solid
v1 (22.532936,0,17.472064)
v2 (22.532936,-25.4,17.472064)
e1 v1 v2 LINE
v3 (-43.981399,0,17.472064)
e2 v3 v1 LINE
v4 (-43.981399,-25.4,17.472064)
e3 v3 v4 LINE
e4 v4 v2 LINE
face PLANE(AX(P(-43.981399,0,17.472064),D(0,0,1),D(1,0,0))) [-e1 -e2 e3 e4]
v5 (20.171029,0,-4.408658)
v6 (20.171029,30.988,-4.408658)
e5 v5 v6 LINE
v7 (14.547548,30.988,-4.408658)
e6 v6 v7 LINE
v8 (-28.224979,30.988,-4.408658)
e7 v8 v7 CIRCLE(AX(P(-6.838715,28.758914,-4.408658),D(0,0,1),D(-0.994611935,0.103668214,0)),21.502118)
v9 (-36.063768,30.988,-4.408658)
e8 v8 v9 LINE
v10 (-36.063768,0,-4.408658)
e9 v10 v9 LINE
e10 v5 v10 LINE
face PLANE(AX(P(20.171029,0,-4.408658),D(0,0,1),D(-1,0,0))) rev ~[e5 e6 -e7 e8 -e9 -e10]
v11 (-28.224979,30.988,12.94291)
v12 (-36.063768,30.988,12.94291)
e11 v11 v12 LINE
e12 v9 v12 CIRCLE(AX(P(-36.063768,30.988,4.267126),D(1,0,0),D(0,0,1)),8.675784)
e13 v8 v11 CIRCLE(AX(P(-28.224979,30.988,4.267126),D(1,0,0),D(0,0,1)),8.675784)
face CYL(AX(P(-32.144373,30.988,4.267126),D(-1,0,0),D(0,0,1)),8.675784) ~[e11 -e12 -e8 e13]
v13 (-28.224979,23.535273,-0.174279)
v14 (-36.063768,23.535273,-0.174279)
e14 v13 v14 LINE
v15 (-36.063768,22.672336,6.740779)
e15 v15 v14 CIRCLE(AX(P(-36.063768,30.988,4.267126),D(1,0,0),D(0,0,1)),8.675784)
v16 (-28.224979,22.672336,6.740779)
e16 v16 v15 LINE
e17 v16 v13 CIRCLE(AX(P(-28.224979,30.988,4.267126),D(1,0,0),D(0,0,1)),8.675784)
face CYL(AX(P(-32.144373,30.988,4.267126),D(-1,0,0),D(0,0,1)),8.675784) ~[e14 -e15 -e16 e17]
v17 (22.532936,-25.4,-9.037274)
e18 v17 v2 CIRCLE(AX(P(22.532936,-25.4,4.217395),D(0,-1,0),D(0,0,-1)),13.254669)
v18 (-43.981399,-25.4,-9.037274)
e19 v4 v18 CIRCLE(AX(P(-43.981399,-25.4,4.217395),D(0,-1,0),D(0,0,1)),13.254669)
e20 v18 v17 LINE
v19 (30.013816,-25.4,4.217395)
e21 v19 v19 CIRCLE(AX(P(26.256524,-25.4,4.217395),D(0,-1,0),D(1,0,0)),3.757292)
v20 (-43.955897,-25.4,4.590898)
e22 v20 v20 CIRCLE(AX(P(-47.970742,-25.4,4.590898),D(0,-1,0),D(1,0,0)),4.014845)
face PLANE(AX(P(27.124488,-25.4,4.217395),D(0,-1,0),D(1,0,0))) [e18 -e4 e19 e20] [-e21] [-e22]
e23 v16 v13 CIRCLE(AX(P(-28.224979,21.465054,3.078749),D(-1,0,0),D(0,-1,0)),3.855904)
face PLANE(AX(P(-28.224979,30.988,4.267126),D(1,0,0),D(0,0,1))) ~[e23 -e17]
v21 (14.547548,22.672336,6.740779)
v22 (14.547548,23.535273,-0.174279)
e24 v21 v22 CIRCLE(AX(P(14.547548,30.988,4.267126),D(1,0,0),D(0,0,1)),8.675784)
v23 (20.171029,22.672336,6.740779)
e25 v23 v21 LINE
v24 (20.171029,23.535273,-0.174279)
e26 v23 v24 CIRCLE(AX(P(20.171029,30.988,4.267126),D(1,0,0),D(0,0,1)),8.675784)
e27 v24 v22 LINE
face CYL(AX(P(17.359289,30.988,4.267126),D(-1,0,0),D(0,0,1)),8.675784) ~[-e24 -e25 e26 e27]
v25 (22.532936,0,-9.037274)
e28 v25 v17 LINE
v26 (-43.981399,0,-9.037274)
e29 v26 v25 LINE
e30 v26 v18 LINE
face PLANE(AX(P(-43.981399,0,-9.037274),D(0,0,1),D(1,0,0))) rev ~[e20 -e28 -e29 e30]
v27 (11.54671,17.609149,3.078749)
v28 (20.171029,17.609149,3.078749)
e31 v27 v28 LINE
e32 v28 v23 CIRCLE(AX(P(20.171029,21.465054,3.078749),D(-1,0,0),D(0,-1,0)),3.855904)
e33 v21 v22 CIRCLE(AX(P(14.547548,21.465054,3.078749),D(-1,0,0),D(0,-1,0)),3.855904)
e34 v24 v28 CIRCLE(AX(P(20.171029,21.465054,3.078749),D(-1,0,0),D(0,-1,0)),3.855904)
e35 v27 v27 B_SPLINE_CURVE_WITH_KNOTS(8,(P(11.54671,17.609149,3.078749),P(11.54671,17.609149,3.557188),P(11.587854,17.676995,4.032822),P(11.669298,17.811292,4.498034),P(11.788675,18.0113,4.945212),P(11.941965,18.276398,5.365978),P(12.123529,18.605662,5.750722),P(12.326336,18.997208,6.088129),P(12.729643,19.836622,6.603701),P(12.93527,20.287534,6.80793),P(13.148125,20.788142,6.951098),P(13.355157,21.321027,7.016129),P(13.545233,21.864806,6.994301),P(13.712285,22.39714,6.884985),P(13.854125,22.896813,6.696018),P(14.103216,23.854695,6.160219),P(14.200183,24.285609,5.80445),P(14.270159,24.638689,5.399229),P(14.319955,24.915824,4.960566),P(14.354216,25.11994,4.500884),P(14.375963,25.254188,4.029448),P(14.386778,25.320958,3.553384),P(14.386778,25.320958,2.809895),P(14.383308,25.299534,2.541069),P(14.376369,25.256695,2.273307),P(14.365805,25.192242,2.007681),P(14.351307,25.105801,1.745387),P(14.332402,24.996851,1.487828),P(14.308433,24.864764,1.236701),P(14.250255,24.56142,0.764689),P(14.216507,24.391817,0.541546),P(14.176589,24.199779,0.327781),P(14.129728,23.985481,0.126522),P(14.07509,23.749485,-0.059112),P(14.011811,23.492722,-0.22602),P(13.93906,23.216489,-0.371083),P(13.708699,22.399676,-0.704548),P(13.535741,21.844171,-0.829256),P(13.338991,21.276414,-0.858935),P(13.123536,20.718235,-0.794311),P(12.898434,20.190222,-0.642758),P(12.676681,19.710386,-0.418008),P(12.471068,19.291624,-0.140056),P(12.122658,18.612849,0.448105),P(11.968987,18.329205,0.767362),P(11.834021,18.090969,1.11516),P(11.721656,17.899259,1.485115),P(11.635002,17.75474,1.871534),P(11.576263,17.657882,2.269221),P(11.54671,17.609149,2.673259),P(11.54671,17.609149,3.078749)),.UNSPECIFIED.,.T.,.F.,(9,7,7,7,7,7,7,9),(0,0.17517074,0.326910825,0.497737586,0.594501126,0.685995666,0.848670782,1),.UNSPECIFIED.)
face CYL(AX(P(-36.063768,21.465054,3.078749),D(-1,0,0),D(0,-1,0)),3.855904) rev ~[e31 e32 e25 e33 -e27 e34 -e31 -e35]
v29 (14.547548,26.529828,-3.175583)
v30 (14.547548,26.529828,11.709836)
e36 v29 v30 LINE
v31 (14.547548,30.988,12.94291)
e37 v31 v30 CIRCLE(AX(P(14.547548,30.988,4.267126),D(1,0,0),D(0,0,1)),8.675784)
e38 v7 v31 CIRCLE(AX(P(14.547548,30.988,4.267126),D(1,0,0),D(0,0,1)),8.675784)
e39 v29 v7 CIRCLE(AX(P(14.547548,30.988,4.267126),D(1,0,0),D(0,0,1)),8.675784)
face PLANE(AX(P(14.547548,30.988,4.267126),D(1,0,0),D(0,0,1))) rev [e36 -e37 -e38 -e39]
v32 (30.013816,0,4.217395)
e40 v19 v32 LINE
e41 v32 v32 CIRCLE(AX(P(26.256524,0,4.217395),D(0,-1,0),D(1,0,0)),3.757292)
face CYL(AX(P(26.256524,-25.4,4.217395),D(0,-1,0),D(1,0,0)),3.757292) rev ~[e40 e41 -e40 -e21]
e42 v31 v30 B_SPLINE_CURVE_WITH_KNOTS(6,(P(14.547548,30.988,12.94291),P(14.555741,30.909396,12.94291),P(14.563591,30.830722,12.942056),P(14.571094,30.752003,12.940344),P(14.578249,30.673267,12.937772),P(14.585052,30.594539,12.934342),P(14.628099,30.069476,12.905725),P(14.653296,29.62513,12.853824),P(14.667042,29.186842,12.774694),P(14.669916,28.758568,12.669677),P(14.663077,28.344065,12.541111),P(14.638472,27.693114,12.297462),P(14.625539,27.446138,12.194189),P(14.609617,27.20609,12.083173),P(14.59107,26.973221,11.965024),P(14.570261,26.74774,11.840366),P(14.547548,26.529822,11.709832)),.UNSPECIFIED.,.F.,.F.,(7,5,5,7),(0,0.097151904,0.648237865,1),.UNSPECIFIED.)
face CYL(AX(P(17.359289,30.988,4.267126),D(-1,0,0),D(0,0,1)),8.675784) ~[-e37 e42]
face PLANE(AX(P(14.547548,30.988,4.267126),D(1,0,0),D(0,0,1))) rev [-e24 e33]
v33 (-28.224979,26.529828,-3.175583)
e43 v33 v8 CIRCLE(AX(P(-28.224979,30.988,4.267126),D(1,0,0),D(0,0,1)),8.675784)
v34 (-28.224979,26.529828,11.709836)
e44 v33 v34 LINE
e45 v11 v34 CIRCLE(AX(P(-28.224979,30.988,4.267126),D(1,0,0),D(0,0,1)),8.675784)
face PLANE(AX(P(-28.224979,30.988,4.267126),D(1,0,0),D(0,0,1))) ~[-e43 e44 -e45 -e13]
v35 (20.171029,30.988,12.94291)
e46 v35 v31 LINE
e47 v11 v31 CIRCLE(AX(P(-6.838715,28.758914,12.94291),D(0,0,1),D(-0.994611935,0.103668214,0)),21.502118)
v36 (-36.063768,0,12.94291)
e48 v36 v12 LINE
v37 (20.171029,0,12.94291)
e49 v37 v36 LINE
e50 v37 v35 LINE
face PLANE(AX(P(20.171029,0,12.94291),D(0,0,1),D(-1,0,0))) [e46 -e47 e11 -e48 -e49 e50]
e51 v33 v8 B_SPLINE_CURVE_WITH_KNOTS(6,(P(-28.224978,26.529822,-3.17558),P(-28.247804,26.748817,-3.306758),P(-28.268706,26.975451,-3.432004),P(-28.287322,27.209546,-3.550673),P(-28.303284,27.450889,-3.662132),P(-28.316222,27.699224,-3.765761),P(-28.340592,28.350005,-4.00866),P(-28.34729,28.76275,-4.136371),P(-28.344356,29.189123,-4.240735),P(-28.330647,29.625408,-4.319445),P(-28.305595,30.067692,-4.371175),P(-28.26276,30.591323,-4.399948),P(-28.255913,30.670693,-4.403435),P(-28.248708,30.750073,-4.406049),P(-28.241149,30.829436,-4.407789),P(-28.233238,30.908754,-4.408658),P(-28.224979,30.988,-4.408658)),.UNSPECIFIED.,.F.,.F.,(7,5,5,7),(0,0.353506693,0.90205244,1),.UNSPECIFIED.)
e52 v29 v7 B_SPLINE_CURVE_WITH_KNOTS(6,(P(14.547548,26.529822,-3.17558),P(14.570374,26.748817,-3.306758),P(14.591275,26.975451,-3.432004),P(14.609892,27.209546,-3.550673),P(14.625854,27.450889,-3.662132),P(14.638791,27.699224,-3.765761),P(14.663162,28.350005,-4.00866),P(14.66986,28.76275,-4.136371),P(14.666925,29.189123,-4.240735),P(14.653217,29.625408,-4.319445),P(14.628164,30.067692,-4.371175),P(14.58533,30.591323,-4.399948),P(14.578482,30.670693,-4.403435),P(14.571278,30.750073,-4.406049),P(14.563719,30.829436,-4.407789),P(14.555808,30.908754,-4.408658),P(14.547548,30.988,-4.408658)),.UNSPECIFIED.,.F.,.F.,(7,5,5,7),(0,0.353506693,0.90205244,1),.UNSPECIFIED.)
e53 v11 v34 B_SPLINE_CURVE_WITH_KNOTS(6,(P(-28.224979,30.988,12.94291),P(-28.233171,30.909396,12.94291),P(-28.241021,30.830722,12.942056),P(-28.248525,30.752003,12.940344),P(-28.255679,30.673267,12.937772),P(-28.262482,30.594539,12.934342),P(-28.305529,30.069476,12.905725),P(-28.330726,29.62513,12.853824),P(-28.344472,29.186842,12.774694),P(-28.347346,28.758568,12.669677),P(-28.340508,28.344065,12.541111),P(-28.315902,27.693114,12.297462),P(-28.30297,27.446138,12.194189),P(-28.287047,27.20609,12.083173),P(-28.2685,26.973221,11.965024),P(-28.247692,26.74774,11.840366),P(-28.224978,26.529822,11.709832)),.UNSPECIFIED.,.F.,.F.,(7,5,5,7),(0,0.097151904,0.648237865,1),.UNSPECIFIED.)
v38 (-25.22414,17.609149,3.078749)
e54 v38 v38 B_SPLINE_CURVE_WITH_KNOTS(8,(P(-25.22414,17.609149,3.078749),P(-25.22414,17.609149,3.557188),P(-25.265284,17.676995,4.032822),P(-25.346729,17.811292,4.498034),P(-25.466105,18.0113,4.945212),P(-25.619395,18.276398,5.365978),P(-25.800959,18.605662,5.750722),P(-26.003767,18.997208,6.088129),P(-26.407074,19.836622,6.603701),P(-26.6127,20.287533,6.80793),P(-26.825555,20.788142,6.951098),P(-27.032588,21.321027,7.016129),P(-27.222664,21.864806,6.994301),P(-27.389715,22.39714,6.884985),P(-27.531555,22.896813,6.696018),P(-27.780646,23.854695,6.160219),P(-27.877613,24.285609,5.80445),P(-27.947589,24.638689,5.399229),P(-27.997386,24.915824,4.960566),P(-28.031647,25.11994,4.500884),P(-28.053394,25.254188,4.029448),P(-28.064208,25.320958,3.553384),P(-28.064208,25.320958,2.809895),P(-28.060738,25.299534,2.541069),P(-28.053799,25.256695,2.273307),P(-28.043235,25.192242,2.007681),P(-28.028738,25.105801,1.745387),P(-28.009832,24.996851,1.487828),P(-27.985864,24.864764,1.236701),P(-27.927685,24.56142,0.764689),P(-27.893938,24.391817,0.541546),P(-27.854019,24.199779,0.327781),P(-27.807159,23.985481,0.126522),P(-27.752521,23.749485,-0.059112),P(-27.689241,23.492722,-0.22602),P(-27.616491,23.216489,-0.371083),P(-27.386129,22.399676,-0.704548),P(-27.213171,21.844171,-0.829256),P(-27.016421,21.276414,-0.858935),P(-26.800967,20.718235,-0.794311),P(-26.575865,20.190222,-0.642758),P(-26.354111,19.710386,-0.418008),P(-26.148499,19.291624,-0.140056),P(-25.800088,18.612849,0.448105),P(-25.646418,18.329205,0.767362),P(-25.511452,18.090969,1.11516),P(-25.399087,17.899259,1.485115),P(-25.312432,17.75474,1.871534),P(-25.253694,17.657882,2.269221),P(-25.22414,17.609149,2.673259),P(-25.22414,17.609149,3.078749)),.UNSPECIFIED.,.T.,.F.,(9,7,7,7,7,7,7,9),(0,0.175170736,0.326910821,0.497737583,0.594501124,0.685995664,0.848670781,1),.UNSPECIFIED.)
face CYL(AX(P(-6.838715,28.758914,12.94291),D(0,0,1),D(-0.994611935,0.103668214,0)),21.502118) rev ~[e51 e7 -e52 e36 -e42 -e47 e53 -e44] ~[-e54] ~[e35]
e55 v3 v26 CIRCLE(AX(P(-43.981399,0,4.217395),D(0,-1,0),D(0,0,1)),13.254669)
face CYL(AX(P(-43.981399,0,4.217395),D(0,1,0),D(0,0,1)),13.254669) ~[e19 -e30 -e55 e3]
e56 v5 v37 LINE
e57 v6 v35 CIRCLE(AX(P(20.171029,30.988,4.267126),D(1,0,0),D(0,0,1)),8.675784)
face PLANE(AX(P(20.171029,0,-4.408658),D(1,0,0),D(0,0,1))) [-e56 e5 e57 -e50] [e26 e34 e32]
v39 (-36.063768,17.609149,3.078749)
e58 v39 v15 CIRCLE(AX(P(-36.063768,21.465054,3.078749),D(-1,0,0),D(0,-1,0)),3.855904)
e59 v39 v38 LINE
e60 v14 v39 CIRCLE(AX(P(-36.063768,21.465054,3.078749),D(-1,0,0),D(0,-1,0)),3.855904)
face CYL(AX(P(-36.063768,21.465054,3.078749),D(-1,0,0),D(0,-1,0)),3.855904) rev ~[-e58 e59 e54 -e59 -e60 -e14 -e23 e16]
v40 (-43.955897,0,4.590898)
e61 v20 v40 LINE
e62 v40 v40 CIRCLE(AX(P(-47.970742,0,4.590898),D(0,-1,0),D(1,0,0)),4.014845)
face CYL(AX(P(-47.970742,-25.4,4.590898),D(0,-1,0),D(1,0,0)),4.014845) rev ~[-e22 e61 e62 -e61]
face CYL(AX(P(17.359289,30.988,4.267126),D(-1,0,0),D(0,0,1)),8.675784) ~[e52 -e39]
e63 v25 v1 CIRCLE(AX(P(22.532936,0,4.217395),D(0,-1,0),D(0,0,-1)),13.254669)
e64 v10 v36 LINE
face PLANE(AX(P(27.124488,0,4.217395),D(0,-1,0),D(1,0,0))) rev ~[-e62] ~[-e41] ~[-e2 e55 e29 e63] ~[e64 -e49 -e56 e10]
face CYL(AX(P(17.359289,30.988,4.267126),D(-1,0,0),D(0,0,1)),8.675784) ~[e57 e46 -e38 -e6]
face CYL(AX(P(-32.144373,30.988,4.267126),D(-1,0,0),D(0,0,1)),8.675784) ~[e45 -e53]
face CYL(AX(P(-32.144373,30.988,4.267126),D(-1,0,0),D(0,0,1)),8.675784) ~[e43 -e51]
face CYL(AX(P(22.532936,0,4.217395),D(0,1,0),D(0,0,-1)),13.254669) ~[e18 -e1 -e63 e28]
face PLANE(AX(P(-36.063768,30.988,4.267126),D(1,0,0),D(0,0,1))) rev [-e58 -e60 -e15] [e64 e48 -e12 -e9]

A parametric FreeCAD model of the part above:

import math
import FreeCAD as App
import Part
import Sketcher
Q = App.Units.Quantity


def add_polygon(sketch, points):
    """Adds a closed chain of lines whose ends are joined by coincident constraints."""
    first, n = sketch.GeometryCount, len(points)
    for a, b in zip(points, points[1:] + points[:1]):
        sketch.addGeometry(Part.LineSegment(App.Vector(*a, 0), App.Vector(*b, 0)), False)
    for i in range(n):
        sketch.addConstraint(Sketcher.Constraint("Coincident", first + i, 2, first + (i + 1) % n, 1))

doc = App.newDocument("Part")
body = doc.addObject("PartDesign::Body", "Body")

# Sketch on XZ plane
sketch1 = doc.addObject("Sketcher::SketchObject", "Sketch")
body.addObject(sketch1)
sketch1.AttachmentSupport = (doc.XZ_Plane, [""])
sketch1.MapMode = "FlatFace"
sketch1.addGeometry([
    Part.ArcOfCircle(Part.Circle(App.Vector(23, 4, 0), App.Vector(0, 0, 1), 13), math.radians(-90), math.radians(90)),
    Part.LineSegment(App.Vector(23, 17, 0), App.Vector(-44, 17, 0)),
    Part.ArcOfCircle(Part.Circle(App.Vector(-44, 4, 0), App.Vector(0, 0, 1), 13), math.radians(90), math.radians(270)),
    Part.LineSegment(App.Vector(-44, -9, 0), App.Vector(23, -9, 0)),
], False)
sketch1.addConstraint([
    Sketcher.Constraint("Tangent", 0, 2, 1, 1),
    Sketcher.Constraint("Tangent", 1, 2, 2, 1),
    Sketcher.Constraint("Tangent", 2, 2, 3, 1),
    Sketcher.Constraint("Tangent", 3, 2, 0, 1),
    Sketcher.Constraint("Horizontal", 1),
    Sketcher.Constraint("Horizontal", 3),
    Sketcher.Constraint("Radius", 0, 13.254669),
    Sketcher.Constraint("DistanceX", 2, 3, -1, 1, 43.981399),
    Sketcher.Constraint("DistanceX", 1, 2, 1, 1, 66.514336),
    Sketcher.Constraint("DistanceY", -1, 1, 0, 3, 4.217395),
])
pad1 = doc.addObject("PartDesign::Pad", "Pad")
body.addObject(pad1)
pad1.Profile = sketch1
pad1.Length = Q("1 in")

# Sketch on XZ plane
sketch2 = doc.addObject("Sketcher::SketchObject", "Sketch001")
body.addObject(sketch2)
sketch2.AttachmentSupport = (doc.XZ_Plane, [""])
sketch2.MapMode = "FlatFace"
sketch2.AttachmentOffset = App.Placement(App.Vector(0, 0, 1 * 25.4), App.Rotation())
sketch2.addGeometry([
    Part.Circle(App.Vector(-48, 4.6, 0), App.Vector(0, 0, 1), 4),
    Part.Circle(App.Vector(26.3, 4.2, 0), App.Vector(0, 0, 1), 3.8),
], False)
sketch2.addConstraint([
    Sketcher.Constraint("Diameter", 0, 8.029689),
    Sketcher.Constraint("Diameter", 1, 7.514585),
    Sketcher.Constraint("DistanceY", -1, 1, 0, 3, 4.590898),
    Sketcher.Constraint("DistanceX", 0, 3, -1, 1, 47.970742),
    Sketcher.Constraint("DistanceX", -1, 1, 1, 3, 26.256524),
    Sketcher.Constraint("DistanceY", -1, 1, 1, 3, 4.217395),
])
pocket1 = doc.addObject("PartDesign::Pocket", "Pocket")
body.addObject(pocket1)
pocket1.Profile = sketch2
pocket1.Length = Q("1 in")

# Sketch on XZ plane
sketch3 = doc.addObject("Sketcher::SketchObject", "Sketch002")
body.addObject(sketch3)
sketch3.AttachmentSupport = (doc.XZ_Plane, [""])
sketch3.MapMode = "FlatFace"
add_polygon(sketch3, [(20, 13), (20, -4), (-36, -4), (-36, 13)])  # lines 0-3
sketch3.addConstraint([
    Sketcher.Constraint("Vertical", 0),
    Sketcher.Constraint("Horizontal", 1),
    Sketcher.Constraint("Vertical", 2),
    Sketcher.Constraint("Horizontal", 3),
    Sketcher.Constraint("DistanceX", 1, 2, 1, 1, 56.234797),
    Sketcher.Constraint("DistanceY", 0, 2, 0, 1, 17.351568),
    Sketcher.Constraint("DistanceX", -1, 1, 0, 2, 20.171029),
    Sketcher.Constraint("DistanceY", -1, 1, 2, 2, 12.94291),
])
pad2 = doc.addObject("PartDesign::Pad", "Pad001")
body.addObject(pad2)
pad2.Profile = sketch3
pad2.Length = Q("1.22 in")
pad2.Reversed = True

# Sketch on XY plane
sketch4 = doc.addObject("Sketcher::SketchObject", "Sketch003")
body.addObject(sketch4)
sketch4.AttachmentSupport = (doc.XY_Plane, [""])
sketch4.MapMode = "FlatFace"
sketch4.AttachmentOffset = App.Placement(App.Vector(0, 0, 12.94291), App.Rotation())
sketch4.addGeometry([
    Part.LineSegment(App.Vector(15, 31, 0), App.Vector(-28, 31, 0)),
    Part.ArcOfCircle(Part.Circle(App.Vector(-7, 29, 0), App.Vector(0, 0, 1), 22), math.radians(174), math.radians(366)),
], False)
sketch4.addConstraint([
    Sketcher.Constraint("Coincident", 0, 1, 1, 2),
    Sketcher.Constraint("Coincident", 1, 1, 0, 2),
    Sketcher.Constraint("Horizontal", 0),
    Sketcher.Constraint("DistanceY", -1, 1, 0, 1, Q("1.22 in")),
    Sketcher.Constraint("Radius", 1, 21.502118),
    Sketcher.Constraint("DistanceX", 0, 2, 0, 1, 42.772527),
    Sketcher.Constraint("DistanceX", -1, 1, 0, 1, 14.547548),
])
pocket2 = doc.addObject("PartDesign::Pocket", "Pocket001")
body.addObject(pocket2)
pocket2.Profile = sketch4
pocket2.Length = Q("1.28 in")

# Sketch on YZ plane
sketch5 = doc.addObject("Sketcher::SketchObject", "Sketch004")
body.addObject(sketch5)
sketch5.AttachmentSupport = (doc.YZ_Plane, [""])
sketch5.MapMode = "FlatFace"
sketch5.AttachmentOffset = App.Placement(App.Vector(0, 0, -36.063768), App.Rotation())
sketch5.addGeometry(Part.Circle(App.Vector(21.5, 3.1, 0), App.Vector(0, 0, 1), 3.9), False)
sketch5.addConstraint([
    Sketcher.Constraint("Diameter", 0, 7.711809),
    Sketcher.Constraint("DistanceY", -1, 1, 0, 3, 3.078749),
    Sketcher.Constraint("DistanceX", -1, 1, 0, 3, 21.465054),
])
pocket3 = doc.addObject("PartDesign::Pocket", "Pocket002")
body.addObject(pocket3)
pocket3.Profile = sketch5
pocket3.Length = Q("3.13 in")
pocket3.Reversed = True

# Sketch on XZ plane
sketch6 = doc.addObject("Sketcher::SketchObject", "Sketch005")
body.addObject(sketch6)
sketch6.AttachmentSupport = (doc.XZ_Plane, [""])
sketch6.MapMode = "FlatFace"
sketch6.AttachmentOffset = App.Placement(App.Vector(0, 0, -1.22 * 25.4), App.Rotation())
add_polygon(sketch6, [(-28, 13), (-28, 4), (-36, 4), (-36, 13)])  # lines 0-3
sketch6.addGeometry(Part.LineSegment(App.Vector(-36, 4, 0), App.Vector(-28, 4, 0)), True)  # axis
sketch6.addConstraint([
    Sketcher.Constraint("Vertical", 0),
    Sketcher.Constraint("Horizontal", 1),
    Sketcher.Constraint("Vertical", 2),
    Sketcher.Constraint("Horizontal", 3),
    Sketcher.Constraint("Horizontal", 4),
    Sketcher.Constraint("Coincident", 4, 1, 1, 2),
    Sketcher.Constraint("Vertical", 3, 2, 4, 2),
    Sketcher.Constraint("DistanceX", 1, 2, 1, 1, 7.838789),
    Sketcher.Constraint("DistanceY", 0, 2, 0, 1, 8.675784),
    Sketcher.Constraint("DistanceX", 0, 2, -1, 1, 28.224979),
    Sketcher.Constraint("DistanceY", -1, 1, 2, 2, 12.94291),
])
revolution = doc.addObject("PartDesign::Revolution", "Revolution")
body.addObject(revolution)
revolution.Profile = sketch6
revolution.ReferenceAxis = (sketch6, ["Axis0"])
revolution.Angle = 360

# Sketch on XZ plane
sketch7 = doc.addObject("Sketcher::SketchObject", "Sketch006")
body.addObject(sketch7)
sketch7.AttachmentSupport = (doc.XZ_Plane, [""])
sketch7.MapMode = "FlatFace"
sketch7.AttachmentOffset = App.Placement(App.Vector(0, 0, -1.22 * 25.4), App.Rotation())
add_polygon(sketch7, [(20, 13), (20, 4), (15, 4), (15, 13)])  # lines 0-3
sketch7.addGeometry(Part.LineSegment(App.Vector(15, 4, 0), App.Vector(20, 4, 0)), True)  # axis
sketch7.addConstraint([
    Sketcher.Constraint("Vertical", 0),
    Sketcher.Constraint("Horizontal", 1),
    Sketcher.Constraint("Vertical", 2),
    Sketcher.Constraint("Horizontal", 3),
    Sketcher.Constraint("Horizontal", 4),
    Sketcher.Constraint("Coincident", 4, 1, 1, 2),
    Sketcher.Constraint("Vertical", 3, 2, 4, 2),
    Sketcher.Constraint("DistanceX", 1, 2, 1, 1, 5.623481),
    Sketcher.Constraint("DistanceY", 0, 2, 0, 1, 8.675784),
    Sketcher.Constraint("DistanceX", -1, 1, 0, 2, 20.171029),
    Sketcher.Constraint("DistanceY", -1, 1, 2, 2, 12.94291),
])
revolution2 = doc.addObject("PartDesign::Revolution", "Revolution001")
body.addObject(revolution2)
revolution2.Profile = sketch7
revolution2.ReferenceAxis = (sketch7, ["Axis0"])
revolution2.Angle = 360

doc.recompute()
